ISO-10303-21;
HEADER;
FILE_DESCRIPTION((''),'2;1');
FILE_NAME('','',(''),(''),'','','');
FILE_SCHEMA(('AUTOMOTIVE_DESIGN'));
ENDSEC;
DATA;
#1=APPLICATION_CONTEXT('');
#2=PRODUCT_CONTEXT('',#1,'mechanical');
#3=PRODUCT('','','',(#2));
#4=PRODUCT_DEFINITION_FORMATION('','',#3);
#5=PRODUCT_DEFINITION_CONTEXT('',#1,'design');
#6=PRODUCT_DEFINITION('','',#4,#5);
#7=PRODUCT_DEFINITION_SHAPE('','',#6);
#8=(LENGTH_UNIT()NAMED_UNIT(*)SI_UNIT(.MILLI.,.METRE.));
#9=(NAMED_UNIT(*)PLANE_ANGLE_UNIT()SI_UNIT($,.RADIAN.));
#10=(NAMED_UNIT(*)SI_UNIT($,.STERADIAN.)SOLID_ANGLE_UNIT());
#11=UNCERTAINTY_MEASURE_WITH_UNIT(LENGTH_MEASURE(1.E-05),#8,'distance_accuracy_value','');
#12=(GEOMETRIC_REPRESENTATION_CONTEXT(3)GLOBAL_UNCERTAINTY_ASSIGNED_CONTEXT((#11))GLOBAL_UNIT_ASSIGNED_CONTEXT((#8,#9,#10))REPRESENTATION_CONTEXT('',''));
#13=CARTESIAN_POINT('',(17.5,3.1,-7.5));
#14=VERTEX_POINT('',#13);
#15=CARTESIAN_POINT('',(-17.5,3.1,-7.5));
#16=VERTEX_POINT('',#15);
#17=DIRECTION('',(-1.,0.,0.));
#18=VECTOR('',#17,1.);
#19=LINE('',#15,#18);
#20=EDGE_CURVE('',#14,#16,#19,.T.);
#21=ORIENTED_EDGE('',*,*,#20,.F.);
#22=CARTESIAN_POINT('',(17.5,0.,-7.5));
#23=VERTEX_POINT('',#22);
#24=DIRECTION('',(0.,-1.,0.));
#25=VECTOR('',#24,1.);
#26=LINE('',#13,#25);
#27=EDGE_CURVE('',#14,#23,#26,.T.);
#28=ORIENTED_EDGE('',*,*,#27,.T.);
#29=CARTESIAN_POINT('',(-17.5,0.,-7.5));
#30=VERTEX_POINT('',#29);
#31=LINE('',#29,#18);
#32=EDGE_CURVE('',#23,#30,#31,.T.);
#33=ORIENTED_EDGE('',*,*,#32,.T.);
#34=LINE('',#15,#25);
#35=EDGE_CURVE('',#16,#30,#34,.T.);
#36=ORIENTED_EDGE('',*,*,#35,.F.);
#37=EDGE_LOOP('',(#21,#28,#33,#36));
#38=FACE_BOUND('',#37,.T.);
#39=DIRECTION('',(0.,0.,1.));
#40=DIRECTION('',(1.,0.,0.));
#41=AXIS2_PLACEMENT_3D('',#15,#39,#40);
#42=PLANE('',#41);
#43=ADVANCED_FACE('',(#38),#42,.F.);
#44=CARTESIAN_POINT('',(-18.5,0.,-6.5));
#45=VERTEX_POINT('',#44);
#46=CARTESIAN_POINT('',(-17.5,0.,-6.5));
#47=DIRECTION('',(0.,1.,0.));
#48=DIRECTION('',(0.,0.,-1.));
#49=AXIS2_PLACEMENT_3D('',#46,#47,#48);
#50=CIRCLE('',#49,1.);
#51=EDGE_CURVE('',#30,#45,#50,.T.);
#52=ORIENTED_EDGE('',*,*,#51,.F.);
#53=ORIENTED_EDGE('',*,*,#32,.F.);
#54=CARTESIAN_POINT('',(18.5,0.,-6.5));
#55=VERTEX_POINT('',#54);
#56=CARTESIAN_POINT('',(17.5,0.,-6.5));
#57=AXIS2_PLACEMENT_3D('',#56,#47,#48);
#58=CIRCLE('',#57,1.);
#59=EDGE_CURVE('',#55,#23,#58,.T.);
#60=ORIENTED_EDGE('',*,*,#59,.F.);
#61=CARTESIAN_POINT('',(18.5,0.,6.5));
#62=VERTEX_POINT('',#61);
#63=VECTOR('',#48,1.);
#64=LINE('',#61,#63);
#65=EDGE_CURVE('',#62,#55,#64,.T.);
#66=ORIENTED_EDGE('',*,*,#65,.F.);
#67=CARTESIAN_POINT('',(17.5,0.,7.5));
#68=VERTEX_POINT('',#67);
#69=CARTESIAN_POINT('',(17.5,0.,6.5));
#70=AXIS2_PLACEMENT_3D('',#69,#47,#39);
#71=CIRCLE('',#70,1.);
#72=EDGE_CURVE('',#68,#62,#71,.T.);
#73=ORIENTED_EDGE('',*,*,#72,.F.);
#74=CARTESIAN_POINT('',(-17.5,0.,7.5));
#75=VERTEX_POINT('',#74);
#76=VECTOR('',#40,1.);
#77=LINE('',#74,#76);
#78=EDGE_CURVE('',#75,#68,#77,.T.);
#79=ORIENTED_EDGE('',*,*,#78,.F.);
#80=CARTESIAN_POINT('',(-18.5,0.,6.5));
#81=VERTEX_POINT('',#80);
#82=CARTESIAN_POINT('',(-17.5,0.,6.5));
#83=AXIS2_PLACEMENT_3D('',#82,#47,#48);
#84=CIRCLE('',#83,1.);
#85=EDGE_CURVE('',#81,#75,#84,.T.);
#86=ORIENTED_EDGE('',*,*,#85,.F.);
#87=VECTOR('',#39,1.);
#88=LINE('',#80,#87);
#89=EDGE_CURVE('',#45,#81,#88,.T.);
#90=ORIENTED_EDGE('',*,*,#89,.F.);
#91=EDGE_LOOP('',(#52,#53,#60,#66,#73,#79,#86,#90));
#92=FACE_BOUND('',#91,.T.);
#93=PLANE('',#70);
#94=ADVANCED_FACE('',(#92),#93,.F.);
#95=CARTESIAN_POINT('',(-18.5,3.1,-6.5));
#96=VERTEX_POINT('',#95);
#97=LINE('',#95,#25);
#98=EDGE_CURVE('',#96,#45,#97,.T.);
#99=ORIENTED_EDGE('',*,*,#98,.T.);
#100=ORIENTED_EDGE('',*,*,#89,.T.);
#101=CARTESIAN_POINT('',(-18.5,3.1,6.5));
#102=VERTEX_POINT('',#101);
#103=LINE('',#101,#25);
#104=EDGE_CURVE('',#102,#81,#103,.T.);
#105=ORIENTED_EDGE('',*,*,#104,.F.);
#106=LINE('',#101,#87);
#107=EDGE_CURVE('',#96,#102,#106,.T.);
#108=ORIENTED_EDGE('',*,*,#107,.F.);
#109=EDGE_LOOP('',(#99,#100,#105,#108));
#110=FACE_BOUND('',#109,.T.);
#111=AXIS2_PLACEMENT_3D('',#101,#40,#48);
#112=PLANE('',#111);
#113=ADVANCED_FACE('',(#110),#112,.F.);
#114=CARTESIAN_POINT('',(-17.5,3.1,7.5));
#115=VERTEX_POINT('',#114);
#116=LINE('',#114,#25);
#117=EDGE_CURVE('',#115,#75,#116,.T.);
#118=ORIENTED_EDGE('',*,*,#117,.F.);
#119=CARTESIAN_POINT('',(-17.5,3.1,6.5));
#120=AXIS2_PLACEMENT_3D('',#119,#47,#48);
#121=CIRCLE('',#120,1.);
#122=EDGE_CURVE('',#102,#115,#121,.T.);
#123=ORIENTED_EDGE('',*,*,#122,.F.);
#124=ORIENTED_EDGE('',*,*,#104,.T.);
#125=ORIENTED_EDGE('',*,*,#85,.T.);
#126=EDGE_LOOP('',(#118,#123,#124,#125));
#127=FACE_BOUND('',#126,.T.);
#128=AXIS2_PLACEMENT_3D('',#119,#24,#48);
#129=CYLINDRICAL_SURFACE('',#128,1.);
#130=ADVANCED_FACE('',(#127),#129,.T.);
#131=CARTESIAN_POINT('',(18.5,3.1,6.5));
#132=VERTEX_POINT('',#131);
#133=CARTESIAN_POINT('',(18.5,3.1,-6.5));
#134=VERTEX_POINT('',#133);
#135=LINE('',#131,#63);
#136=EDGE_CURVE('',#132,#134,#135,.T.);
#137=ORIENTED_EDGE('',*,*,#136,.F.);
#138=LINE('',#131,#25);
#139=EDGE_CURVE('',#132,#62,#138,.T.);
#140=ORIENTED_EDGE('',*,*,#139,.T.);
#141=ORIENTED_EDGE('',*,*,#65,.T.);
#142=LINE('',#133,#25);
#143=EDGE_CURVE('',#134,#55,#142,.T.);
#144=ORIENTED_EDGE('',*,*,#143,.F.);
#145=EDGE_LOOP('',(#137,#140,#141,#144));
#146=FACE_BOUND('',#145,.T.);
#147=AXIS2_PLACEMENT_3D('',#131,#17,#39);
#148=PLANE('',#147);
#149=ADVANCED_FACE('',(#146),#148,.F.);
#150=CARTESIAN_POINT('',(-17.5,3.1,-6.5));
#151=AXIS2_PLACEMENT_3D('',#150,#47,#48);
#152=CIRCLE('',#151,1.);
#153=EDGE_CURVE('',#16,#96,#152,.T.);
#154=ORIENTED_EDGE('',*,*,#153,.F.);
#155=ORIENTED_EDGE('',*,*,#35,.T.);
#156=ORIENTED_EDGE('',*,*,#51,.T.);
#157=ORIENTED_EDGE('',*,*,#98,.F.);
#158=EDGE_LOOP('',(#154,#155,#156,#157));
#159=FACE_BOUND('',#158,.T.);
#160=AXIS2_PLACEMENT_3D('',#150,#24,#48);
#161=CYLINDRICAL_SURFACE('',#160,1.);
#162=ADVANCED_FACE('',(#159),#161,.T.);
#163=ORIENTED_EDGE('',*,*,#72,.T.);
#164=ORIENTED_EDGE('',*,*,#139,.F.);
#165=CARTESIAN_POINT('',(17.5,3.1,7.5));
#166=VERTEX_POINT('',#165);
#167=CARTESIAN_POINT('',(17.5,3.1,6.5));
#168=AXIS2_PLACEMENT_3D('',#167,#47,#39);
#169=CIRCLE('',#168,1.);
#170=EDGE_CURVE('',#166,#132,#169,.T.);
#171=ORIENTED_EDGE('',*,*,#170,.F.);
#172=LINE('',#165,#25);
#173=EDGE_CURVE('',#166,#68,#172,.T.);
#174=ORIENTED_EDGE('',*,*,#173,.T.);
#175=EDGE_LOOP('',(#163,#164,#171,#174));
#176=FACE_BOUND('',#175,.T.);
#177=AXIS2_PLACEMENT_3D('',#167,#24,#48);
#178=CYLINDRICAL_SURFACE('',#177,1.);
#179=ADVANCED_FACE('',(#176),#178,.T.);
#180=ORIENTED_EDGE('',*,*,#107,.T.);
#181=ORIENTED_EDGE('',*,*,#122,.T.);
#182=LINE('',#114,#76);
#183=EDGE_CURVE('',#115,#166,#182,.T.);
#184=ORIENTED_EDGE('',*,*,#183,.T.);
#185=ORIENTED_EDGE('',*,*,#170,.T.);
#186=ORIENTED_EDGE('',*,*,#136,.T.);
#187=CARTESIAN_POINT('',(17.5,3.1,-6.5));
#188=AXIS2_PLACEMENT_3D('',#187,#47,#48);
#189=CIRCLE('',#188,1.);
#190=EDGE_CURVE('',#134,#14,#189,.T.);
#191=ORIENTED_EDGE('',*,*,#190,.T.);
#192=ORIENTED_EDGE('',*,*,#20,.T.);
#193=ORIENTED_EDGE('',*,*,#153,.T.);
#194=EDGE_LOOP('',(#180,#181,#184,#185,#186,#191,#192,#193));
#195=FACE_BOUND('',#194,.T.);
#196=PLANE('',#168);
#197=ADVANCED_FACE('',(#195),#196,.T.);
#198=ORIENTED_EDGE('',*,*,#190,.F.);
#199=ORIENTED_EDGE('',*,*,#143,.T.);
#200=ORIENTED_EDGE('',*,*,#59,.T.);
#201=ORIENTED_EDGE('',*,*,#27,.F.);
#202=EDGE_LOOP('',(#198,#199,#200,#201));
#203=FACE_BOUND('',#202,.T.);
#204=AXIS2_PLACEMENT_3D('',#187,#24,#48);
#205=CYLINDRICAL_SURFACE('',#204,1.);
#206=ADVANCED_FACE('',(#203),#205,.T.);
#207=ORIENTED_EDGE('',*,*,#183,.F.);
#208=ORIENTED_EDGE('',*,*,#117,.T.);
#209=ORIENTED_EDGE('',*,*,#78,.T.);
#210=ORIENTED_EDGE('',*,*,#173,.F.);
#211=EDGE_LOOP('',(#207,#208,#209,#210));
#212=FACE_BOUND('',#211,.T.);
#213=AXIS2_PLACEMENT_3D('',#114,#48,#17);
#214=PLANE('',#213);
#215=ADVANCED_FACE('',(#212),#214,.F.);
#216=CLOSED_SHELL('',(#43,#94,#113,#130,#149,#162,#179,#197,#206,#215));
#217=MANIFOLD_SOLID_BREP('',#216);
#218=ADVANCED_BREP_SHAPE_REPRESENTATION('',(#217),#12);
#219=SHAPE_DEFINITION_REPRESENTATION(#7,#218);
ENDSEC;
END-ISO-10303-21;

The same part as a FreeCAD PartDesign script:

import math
import FreeCAD as App
import Part
import Sketcher

V = App.Vector
Q = App.Units.Quantity

doc = App.newDocument("Part")
body = doc.addObject("PartDesign::Body", "Body")

# Sketch on XZ plane
sketch1 = body.newObject("Sketcher::SketchObject", "Sketch")
sketch1.AttachmentSupport = (doc.getObject("XZ_Plane"), [""])
sketch1.MapMode = "FlatFace"
sketch1.addGeometry([
    Part.LineSegment(V(-17.5, 7.5, 0), V(17.5, 7.5, 0)),  # 0
    Part.ArcOfCircle(Part.Circle(V(17.5, 6.5, 0), V(0, 0, 1), 1), math.radians(0), math.radians(90)),  # 1
    Part.LineSegment(V(18.5, 6.5, 0), V(18.5, -6.5, 0)),  # 2
    Part.ArcOfCircle(Part.Circle(V(17.5, -6.5, 0), V(0, 0, 1), 1), math.radians(-90), math.radians(0)),  # 3
    Part.LineSegment(V(17.5, -7.5, 0), V(-17.5, -7.5, 0)),  # 4
    Part.ArcOfCircle(Part.Circle(V(-17.5, -6.5, 0), V(0, 0, 1), 1), math.radians(-180), math.radians(-90)),  # 5
    Part.LineSegment(V(-18.5, -6.5, 0), V(-18.5, 6.5, 0)),  # 6
    Part.ArcOfCircle(Part.Circle(V(-17.5, 6.5, 0), V(0, 0, 1), 1), math.radians(90), math.radians(180)),  # 7
], False)
sketch1.addConstraint([
    Sketcher.Constraint("Tangent", 0, 2, 1, 2),
    Sketcher.Constraint("Tangent", 1, 1, 2, 1),
    Sketcher.Constraint("Tangent", 2, 2, 3, 2),
    Sketcher.Constraint("Tangent", 3, 1, 4, 1),
    Sketcher.Constraint("Tangent", 4, 2, 5, 2),
    Sketcher.Constraint("Tangent", 5, 1, 6, 1),
    Sketcher.Constraint("Tangent", 6, 2, 7, 2),
    Sketcher.Constraint("Tangent", 7, 1, 0, 1),
    Sketcher.Constraint("Horizontal", 0),
    Sketcher.Constraint("Vertical", 2),
    Sketcher.Constraint("Horizontal", 4),
    Sketcher.Constraint("Vertical", 6),
    Sketcher.Constraint("Equal", 1, 3),
    Sketcher.Constraint("Equal", 3, 5),
    Sketcher.Constraint("Equal", 5, 7),
    Sketcher.Constraint("Symmetric", 1, 3, 5, 3, -1, 1),
    Sketcher.Constraint("Radius", 1, Q("1 mm")),
    Sketcher.Constraint("DistanceX", 0, 1, 0, 2, Q("35 mm")),
    Sketcher.Constraint("DistanceY", 2, 2, 2, 1, Q("13 mm")),
])
pad1 = body.newObject("PartDesign::Pad", "Pad")
pad1.Profile = sketch1
pad1.Length = 3.1
pad1.Reversed = True

doc.recompute()
